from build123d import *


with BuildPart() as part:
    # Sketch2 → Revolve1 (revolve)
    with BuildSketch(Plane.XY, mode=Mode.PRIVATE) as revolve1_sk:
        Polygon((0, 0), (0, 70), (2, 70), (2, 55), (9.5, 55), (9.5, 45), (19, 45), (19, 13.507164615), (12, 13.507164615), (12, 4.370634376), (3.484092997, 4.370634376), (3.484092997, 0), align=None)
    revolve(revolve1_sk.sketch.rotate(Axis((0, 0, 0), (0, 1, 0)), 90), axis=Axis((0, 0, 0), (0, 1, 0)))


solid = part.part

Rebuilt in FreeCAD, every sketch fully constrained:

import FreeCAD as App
import Part
import Sketcher
from FreeCAD import Vector

doc = App.newDocument("Part")
body = doc.addObject("PartDesign::Body", "Body")

sketch1 = body.newObject("Sketcher::SketchObject", "Sketch")
sketch1.AttachmentSupport = (doc.getObject("XY_Plane"), [""])
sketch1.MapMode = "FlatFace"
sketch1.addGeometry([
    Part.LineSegment(Vector(0, 70, 0), Vector(0, 0, 0)),
    Part.LineSegment(Vector(0, 0, 0), Vector(3.484093, 0, 0)),
    Part.LineSegment(Vector(3.484093, 0, 0), Vector(3.484093, 4.370634, 0)),
    Part.LineSegment(Vector(3.484093, 4.370634, 0), Vector(12, 4.370634, 0)),
    Part.LineSegment(Vector(12, 4.370634, 0), Vector(12, 13.507165, 0)),
    Part.LineSegment(Vector(12, 13.507165, 0), Vector(19, 13.507165, 0)),
    Part.LineSegment(Vector(19, 13.507165, 0), Vector(19, 45, 0)),
    Part.LineSegment(Vector(19, 45, 0), Vector(9.5, 45, 0)),
    Part.LineSegment(Vector(9.5, 45, 0), Vector(9.5, 55, 0)),
    Part.LineSegment(Vector(9.5, 55, 0), Vector(2, 55, 0)),
    Part.LineSegment(Vector(2, 55, 0), Vector(2, 70, 0)),
    Part.LineSegment(Vector(2, 70, 0), Vector(0, 70, 0)),
], False)
sketch1.addConstraint([
    Sketcher.Constraint("Coincident", 0, 2, 1, 1),
    Sketcher.Constraint("Coincident", 1, 2, 2, 1),
    Sketcher.Constraint("Coincident", 2, 2, 3, 1),
    Sketcher.Constraint("Coincident", 3, 2, 4, 1),
    Sketcher.Constraint("Coincident", 4, 2, 5, 1),
    Sketcher.Constraint("Coincident", 5, 2, 6, 1),
    Sketcher.Constraint("Coincident", 6, 2, 7, 1),
    Sketcher.Constraint("Coincident", 7, 2, 8, 1),
    Sketcher.Constraint("Coincident", 8, 2, 9, 1),
    Sketcher.Constraint("Coincident", 9, 2, 10, 1),
    Sketcher.Constraint("Coincident", 10, 2, 11, 1),
    Sketcher.Constraint("Coincident", 11, 2, 0, 1),
    Sketcher.Constraint("Vertical", 0),
    Sketcher.Constraint("Horizontal", 1),
    Sketcher.Constraint("Vertical", 2),
    Sketcher.Constraint("Horizontal", 3),
    Sketcher.Constraint("Vertical", 4),
    Sketcher.Constraint("Horizontal", 5),
    Sketcher.Constraint("Vertical", 6),
    Sketcher.Constraint("Horizontal", 7),
    Sketcher.Constraint("Vertical", 8),
    Sketcher.Constraint("Horizontal", 9),
    Sketcher.Constraint("Vertical", 10),
    Sketcher.Constraint("Horizontal", 11),
    Sketcher.Constraint("Coincident", 0, 2, -1, 1),
    Sketcher.Constraint("DistanceX", 5, 1, 5, 2, 7.0),
    Sketcher.Constraint("DistanceX", 11, 2, 11, 1, 2.0),
    Sketcher.Constraint("DistanceY", 0, 2, 0, 1, 70.0),
    Sketcher.Constraint("DistanceY", 8, 1, 8, 2, 10.0),
    Sketcher.Constraint("DistanceY", 10, 1, 10, 2, 15.0),
    Sketcher.Constraint("DistanceX", 7, 2, 7, 1, 9.5),
    Sketcher.Constraint("DistanceX", 9, 2, 9, 1, 7.5),
    Sketcher.Constraint("DistanceY", 4, 1, 4, 2, 9.13653),
    Sketcher.Constraint("DistanceX", 1, 1, 1, 2, 3.484093),
    Sketcher.Constraint("DistanceY", 2, 1, 2, 2, 4.370634),
])
revolution = body.newObject("PartDesign::Revolution", "Revolution")
revolution.Profile = sketch1
revolution.ReferenceAxis = (sketch1, ["V_Axis"])
revolution.Angle = 360

doc.recompute()
